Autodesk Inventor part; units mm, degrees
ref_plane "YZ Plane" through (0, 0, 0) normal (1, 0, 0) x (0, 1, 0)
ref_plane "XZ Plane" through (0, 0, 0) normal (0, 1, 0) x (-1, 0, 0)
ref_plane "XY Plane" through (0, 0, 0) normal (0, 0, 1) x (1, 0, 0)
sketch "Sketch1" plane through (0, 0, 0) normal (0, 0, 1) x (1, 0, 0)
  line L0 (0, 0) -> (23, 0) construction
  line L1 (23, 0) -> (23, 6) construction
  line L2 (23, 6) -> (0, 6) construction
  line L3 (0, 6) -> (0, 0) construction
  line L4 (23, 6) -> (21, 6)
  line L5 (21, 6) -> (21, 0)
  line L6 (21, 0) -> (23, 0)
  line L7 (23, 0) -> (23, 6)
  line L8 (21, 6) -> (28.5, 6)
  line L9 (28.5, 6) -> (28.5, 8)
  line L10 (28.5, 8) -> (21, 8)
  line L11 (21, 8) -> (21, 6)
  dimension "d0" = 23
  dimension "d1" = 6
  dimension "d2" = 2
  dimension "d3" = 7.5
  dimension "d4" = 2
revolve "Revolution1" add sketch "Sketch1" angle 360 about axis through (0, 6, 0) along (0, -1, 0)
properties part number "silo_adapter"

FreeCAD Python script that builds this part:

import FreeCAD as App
import Part
import Sketcher


def add_polygon(sketch, points):
    """Adds a closed chain of lines whose ends are joined by coincident constraints."""
    first, n = sketch.GeometryCount, len(points)
    for a, b in zip(points, points[1:] + points[:1]):
        sketch.addGeometry(Part.LineSegment(App.Vector(*a, 0), App.Vector(*b, 0)), False)
    for i in range(n):
        sketch.addConstraint(Sketcher.Constraint("Coincident", first + i, 2, first + (i + 1) % n, 1))

doc = App.newDocument("Part")
body = doc.addObject("PartDesign::Body", "Body")

sketch1 = body.newObject("Sketcher::SketchObject", "Sketch")
sketch1.AttachmentSupport = (doc.getObject("XY_Plane"), [""])
sketch1.MapMode = "FlatFace"
add_polygon(sketch1, [(23, 0), (23, 6), (28.5, 6), (28.5, 8), (21, 8), (21, 0)])
sketch1.addConstraint([
    Sketcher.Constraint("Vertical", 0),
    Sketcher.Constraint("Horizontal", 1),
    Sketcher.Constraint("Vertical", 2),
    Sketcher.Constraint("Horizontal", 3),
    Sketcher.Constraint("Vertical", 4),
    Sketcher.Constraint("Horizontal", 5),
    Sketcher.Constraint("PointOnObject", 4, 2, -1),
    Sketcher.Constraint("Equal", 5, 2),
    Sketcher.Constraint("DistanceX", 5, 1, 5, 2, 2.0),
    Sketcher.Constraint("DistanceY", 0, 1, 0, 2, 6.0),
    Sketcher.Constraint("DistanceX", 3, 2, 3, 1, 7.5),
    Sketcher.Constraint("DistanceX", -1, 1, 0, 2, 23.0),
])
revolution = body.newObject("PartDesign::Revolution", "Revolution")
revolution.Profile = sketch1
revolution.ReferenceAxis = (sketch1, ["V_Axis"])
revolution.Angle = 360

doc.recompute()
